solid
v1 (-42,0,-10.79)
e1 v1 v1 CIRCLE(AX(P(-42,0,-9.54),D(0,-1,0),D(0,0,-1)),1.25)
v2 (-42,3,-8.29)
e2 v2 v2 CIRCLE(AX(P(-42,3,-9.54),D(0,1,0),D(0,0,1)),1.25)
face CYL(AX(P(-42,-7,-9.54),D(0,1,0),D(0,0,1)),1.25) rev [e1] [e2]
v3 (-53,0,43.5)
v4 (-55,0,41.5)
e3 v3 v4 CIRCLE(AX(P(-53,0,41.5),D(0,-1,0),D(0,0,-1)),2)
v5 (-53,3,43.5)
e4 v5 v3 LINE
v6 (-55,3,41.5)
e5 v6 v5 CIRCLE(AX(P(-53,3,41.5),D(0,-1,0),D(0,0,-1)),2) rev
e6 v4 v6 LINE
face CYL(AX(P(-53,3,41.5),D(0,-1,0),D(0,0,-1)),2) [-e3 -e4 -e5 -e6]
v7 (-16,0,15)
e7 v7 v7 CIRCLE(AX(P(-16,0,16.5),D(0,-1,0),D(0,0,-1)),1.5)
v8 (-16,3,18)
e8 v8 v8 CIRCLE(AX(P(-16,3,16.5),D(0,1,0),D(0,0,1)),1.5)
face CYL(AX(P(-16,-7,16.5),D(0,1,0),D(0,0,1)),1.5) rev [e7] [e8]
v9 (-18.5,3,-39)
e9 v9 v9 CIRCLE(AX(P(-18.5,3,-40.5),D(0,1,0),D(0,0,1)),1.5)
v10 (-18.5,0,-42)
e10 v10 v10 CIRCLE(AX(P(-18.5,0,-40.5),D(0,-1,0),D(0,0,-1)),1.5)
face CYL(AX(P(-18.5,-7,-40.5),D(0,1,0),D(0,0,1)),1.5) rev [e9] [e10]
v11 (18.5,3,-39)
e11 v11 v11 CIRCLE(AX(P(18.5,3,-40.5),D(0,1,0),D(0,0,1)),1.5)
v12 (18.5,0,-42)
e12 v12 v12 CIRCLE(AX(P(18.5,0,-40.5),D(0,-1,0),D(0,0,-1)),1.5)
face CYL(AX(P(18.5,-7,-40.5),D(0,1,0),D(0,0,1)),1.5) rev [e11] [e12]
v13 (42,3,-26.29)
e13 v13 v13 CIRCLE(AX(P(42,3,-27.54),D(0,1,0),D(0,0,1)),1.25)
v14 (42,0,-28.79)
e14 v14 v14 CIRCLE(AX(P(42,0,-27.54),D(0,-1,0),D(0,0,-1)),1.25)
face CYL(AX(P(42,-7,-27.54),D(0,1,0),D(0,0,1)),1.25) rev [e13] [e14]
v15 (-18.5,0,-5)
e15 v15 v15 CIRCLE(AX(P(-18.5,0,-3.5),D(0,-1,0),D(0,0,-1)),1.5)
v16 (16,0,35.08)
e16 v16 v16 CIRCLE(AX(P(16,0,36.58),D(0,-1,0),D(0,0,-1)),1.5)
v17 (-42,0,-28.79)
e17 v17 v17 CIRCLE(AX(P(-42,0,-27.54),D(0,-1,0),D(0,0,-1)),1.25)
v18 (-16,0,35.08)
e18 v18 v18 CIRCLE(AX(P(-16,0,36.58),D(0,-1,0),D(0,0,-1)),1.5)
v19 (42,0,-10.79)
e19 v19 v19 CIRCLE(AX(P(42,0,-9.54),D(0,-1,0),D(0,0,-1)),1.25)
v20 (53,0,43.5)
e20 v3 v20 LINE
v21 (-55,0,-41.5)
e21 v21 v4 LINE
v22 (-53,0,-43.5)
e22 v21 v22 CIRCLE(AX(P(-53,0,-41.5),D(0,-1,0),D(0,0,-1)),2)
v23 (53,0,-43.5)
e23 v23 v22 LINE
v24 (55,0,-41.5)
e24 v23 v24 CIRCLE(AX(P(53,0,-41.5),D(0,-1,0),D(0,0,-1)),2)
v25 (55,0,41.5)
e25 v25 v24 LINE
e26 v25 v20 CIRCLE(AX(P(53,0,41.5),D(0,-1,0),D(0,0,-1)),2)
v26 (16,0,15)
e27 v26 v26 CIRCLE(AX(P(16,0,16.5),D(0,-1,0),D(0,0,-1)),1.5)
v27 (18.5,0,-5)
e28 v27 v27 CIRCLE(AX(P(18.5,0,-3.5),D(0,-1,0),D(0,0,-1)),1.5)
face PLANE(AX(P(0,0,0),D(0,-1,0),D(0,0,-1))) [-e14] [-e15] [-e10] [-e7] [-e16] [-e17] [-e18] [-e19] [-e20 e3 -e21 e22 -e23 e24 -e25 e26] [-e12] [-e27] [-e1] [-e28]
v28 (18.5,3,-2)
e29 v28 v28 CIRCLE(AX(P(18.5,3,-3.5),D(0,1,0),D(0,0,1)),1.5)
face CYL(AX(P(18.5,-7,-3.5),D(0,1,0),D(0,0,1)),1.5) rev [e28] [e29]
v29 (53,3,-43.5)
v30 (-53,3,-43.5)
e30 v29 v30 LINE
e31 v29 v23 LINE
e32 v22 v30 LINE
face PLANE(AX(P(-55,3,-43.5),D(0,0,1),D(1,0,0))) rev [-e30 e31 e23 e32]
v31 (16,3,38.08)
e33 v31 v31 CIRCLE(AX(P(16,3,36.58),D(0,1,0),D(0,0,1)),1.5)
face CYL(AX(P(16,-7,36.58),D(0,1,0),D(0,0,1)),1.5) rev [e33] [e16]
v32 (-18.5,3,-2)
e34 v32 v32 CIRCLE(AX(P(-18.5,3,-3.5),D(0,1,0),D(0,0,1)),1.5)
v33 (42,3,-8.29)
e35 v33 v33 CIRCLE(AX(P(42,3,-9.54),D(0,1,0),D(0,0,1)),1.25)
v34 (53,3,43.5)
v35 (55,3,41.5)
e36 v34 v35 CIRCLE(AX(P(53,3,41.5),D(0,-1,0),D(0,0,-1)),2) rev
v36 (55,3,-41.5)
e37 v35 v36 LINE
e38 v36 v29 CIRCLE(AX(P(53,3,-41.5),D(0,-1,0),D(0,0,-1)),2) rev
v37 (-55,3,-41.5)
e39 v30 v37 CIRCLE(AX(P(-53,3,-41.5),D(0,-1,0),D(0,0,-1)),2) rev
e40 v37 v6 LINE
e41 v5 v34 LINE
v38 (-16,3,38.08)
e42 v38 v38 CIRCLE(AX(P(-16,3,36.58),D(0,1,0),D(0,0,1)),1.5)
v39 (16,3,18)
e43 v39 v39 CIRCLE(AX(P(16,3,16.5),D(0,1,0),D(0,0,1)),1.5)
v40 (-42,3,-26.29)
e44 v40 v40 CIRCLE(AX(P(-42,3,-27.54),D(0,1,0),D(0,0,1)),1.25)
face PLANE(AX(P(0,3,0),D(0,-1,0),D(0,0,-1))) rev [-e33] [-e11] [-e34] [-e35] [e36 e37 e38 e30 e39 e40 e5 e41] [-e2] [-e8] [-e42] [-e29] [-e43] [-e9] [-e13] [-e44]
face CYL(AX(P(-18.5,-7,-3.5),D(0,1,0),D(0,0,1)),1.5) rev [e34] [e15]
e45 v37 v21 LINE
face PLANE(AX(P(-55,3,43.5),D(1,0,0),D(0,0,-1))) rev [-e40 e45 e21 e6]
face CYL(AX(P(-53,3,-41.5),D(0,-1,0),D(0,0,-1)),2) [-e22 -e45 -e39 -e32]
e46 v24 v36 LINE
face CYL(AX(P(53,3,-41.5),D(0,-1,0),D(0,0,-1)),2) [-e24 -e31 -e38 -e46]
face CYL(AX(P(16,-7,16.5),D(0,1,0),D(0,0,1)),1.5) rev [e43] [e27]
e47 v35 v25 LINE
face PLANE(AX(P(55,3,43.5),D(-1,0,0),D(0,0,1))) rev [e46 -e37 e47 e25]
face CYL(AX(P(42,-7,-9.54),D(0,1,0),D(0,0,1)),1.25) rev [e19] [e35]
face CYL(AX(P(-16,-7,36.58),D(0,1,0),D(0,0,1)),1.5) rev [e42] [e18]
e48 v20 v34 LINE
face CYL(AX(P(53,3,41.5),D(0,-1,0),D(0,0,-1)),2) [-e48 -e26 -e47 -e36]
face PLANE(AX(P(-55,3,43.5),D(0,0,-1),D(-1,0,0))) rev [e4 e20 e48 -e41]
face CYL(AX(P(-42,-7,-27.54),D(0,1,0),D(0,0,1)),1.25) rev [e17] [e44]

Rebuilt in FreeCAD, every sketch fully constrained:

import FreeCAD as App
import Part
import Sketcher

V = App.Vector
Q = App.Units.Quantity


def edges_at(feature, points):
    """Names of the edges that pass closest to the given points."""
    edges = feature.Shape.Edges
    near = lambda p: min(range(len(edges)), key=lambda i: edges[i].distToShape(Part.Vertex(*p))[0])
    return sorted({f"Edge{near(p) + 1}" for p in points})

doc = App.newDocument("Part")
body = doc.addObject("PartDesign::Body", "Body")

sketch1 = body.newObject("Sketcher::SketchObject", "Sketch")
sketch1.AttachmentSupport = (doc.getObject("XZ_Plane"), [""])
sketch1.MapMode = "FlatFace"
sketch1.addGeometry([
    Part.LineSegment(V(-55, -43.5, 0), V(-55, 43.5, 0)),
    Part.LineSegment(V(-55, 43.5, 0), V(55, 43.5, 0)),
    Part.LineSegment(V(55, 43.5, 0), V(55, -43.5, 0)),
    Part.LineSegment(V(55, -43.5, 0), V(-55, -43.5, 0)),
], False)
sketch1.addConstraint([
    Sketcher.Constraint("Coincident", 0, 2, 1, 1),
    Sketcher.Constraint("Coincident", 1, 2, 2, 1),
    Sketcher.Constraint("Coincident", 2, 2, 3, 1),
    Sketcher.Constraint("Coincident", 3, 2, 0, 1),
    Sketcher.Constraint("Vertical", 0),
    Sketcher.Constraint("Horizontal", 1),
    Sketcher.Constraint("Vertical", 2),
    Sketcher.Constraint("Horizontal", 3),
    Sketcher.Constraint("Symmetric", 0, 2, 2, 2, -1, 1),
    Sketcher.Constraint("DistanceX", 1, 1, 1, 2, Q("110 mm")),
    Sketcher.Constraint("DistanceY", 0, 1, 0, 2, Q("87 mm")),
])
pad1 = body.newObject("PartDesign::Pad", "Pad")
pad1.Profile = sketch1
pad1.Length = 3
pad1.Reversed = True
doc.recompute()

fillet = body.newObject("PartDesign::Fillet", "Fillet")
fillet.Base = (pad1, edges_at(pad1, [
    (55, 1.5, 43.5),
    (-55, 1.5, 43.5),
    (-55, 1.5, -43.5),
    (55, 1.5, -43.5),
]))
fillet.Radius = 2

sketch2 = body.newObject("Sketcher::SketchObject", "Sketch001")
sketch2.AttachmentSupport = (doc.getObject("XZ_Plane"), [""])
sketch2.MapMode = "FlatFace"
sketch2.AttachmentOffset = App.Placement(V(0, 0, -3), App.Rotation())
sketch2.addGeometry([
    Part.Circle(V(-18.5, -40.5, 0), V(0, 0, 1), 1.5),
    Part.Circle(V(18.5, -40.5, 0), V(0, 0, 1), 1.5),
    Part.Circle(V(18.5, -3.5, 0), V(0, 0, 1), 1.5),
    Part.Circle(V(-18.5, -3.5, 0), V(0, 0, 1), 1.5),
    Part.Circle(V(-42, -27.54, 0), V(0, 0, 1), 1.25),
    Part.Circle(V(-42, -9.54, 0), V(0, 0, 1), 1.25),
    Part.Circle(V(42, -27.54, 0), V(0, 0, 1), 1.25),
    Part.Circle(V(42, -9.54, 0), V(0, 0, 1), 1.25),
    Part.Circle(V(-16, 36.58, 0), V(0, 0, 1), 1.5),
    Part.Circle(V(-16, 16.5, 0), V(0, 0, 1), 1.5),
    Part.Circle(V(16, 16.5, 0), V(0, 0, 1), 1.5),
    Part.Circle(V(16, 36.58, 0), V(0, 0, 1), 1.5),
], False)
sketch2.addConstraint([
    Sketcher.Constraint("Equal", 0, 1),
    Sketcher.Constraint("Equal", 1, 2),
    Sketcher.Constraint("Equal", 2, 3),
    Sketcher.Constraint("Equal", 4, 5),
    Sketcher.Constraint("Equal", 5, 6),
    Sketcher.Constraint("Equal", 6, 7),
    Sketcher.Constraint("Equal", 3, 8),
    Sketcher.Constraint("Equal", 8, 9),
    Sketcher.Constraint("Equal", 9, 10),
    Sketcher.Constraint("Equal", 10, 11),
    Sketcher.Constraint("Symmetric", 0, 3, 1, 3, -2),
    Sketcher.Constraint("Symmetric", 2, 3, 3, 3, -2),
    Sketcher.Constraint("Symmetric", 4, 3, 6, 3, -2),
    Sketcher.Constraint("Symmetric", 5, 3, 7, 3, -2),
    Sketcher.Constraint("Symmetric", 9, 3, 10, 3, -2),
    Sketcher.Constraint("Symmetric", 8, 3, 11, 3, -2),
    Sketcher.Constraint("Vertical", 1, 3, 2, 3),
    Sketcher.Constraint("Vertical", 4, 3, 5, 3),
    Sketcher.Constraint("Vertical", 8, 3, 9, 3),
    Sketcher.Constraint("Diameter", 0, Q("3 mm")),
    Sketcher.Constraint("Diameter", 4, Q("2.5 mm")),
    Sketcher.Constraint("DistanceX", 4, 3, -1, 1, Q("42 mm")),
    Sketcher.Constraint("DistanceX", 8, 3, -1, 1, Q("16 mm")),
    Sketcher.Constraint("DistanceX", 0, 3, 1, 3, Q("37 mm")),
    Sketcher.Constraint("DistanceY", 1, 3, 2, 3, Q("37 mm")),
    Sketcher.Constraint("DistanceY", 4, 3, 5, 3, Q("18 mm")),
    Sketcher.Constraint("DistanceY", 3, 3, 9, 3, Q("20 mm")),
    Sketcher.Constraint("DistanceY", 0, 3, -1, 1, Q("40.5 mm")),
    Sketcher.Constraint("DistanceY", 4, 3, -1, 1, Q("27.54 mm")),
    Sketcher.Constraint("DistanceY", -1, 1, 8, 3, Q("36.58 mm")),
])
pocket1 = body.newObject("PartDesign::Pocket", "Pocket")
pocket1.Profile = sketch2
pocket1.Length = 10
pocket1.Reversed = True

doc.recompute()
